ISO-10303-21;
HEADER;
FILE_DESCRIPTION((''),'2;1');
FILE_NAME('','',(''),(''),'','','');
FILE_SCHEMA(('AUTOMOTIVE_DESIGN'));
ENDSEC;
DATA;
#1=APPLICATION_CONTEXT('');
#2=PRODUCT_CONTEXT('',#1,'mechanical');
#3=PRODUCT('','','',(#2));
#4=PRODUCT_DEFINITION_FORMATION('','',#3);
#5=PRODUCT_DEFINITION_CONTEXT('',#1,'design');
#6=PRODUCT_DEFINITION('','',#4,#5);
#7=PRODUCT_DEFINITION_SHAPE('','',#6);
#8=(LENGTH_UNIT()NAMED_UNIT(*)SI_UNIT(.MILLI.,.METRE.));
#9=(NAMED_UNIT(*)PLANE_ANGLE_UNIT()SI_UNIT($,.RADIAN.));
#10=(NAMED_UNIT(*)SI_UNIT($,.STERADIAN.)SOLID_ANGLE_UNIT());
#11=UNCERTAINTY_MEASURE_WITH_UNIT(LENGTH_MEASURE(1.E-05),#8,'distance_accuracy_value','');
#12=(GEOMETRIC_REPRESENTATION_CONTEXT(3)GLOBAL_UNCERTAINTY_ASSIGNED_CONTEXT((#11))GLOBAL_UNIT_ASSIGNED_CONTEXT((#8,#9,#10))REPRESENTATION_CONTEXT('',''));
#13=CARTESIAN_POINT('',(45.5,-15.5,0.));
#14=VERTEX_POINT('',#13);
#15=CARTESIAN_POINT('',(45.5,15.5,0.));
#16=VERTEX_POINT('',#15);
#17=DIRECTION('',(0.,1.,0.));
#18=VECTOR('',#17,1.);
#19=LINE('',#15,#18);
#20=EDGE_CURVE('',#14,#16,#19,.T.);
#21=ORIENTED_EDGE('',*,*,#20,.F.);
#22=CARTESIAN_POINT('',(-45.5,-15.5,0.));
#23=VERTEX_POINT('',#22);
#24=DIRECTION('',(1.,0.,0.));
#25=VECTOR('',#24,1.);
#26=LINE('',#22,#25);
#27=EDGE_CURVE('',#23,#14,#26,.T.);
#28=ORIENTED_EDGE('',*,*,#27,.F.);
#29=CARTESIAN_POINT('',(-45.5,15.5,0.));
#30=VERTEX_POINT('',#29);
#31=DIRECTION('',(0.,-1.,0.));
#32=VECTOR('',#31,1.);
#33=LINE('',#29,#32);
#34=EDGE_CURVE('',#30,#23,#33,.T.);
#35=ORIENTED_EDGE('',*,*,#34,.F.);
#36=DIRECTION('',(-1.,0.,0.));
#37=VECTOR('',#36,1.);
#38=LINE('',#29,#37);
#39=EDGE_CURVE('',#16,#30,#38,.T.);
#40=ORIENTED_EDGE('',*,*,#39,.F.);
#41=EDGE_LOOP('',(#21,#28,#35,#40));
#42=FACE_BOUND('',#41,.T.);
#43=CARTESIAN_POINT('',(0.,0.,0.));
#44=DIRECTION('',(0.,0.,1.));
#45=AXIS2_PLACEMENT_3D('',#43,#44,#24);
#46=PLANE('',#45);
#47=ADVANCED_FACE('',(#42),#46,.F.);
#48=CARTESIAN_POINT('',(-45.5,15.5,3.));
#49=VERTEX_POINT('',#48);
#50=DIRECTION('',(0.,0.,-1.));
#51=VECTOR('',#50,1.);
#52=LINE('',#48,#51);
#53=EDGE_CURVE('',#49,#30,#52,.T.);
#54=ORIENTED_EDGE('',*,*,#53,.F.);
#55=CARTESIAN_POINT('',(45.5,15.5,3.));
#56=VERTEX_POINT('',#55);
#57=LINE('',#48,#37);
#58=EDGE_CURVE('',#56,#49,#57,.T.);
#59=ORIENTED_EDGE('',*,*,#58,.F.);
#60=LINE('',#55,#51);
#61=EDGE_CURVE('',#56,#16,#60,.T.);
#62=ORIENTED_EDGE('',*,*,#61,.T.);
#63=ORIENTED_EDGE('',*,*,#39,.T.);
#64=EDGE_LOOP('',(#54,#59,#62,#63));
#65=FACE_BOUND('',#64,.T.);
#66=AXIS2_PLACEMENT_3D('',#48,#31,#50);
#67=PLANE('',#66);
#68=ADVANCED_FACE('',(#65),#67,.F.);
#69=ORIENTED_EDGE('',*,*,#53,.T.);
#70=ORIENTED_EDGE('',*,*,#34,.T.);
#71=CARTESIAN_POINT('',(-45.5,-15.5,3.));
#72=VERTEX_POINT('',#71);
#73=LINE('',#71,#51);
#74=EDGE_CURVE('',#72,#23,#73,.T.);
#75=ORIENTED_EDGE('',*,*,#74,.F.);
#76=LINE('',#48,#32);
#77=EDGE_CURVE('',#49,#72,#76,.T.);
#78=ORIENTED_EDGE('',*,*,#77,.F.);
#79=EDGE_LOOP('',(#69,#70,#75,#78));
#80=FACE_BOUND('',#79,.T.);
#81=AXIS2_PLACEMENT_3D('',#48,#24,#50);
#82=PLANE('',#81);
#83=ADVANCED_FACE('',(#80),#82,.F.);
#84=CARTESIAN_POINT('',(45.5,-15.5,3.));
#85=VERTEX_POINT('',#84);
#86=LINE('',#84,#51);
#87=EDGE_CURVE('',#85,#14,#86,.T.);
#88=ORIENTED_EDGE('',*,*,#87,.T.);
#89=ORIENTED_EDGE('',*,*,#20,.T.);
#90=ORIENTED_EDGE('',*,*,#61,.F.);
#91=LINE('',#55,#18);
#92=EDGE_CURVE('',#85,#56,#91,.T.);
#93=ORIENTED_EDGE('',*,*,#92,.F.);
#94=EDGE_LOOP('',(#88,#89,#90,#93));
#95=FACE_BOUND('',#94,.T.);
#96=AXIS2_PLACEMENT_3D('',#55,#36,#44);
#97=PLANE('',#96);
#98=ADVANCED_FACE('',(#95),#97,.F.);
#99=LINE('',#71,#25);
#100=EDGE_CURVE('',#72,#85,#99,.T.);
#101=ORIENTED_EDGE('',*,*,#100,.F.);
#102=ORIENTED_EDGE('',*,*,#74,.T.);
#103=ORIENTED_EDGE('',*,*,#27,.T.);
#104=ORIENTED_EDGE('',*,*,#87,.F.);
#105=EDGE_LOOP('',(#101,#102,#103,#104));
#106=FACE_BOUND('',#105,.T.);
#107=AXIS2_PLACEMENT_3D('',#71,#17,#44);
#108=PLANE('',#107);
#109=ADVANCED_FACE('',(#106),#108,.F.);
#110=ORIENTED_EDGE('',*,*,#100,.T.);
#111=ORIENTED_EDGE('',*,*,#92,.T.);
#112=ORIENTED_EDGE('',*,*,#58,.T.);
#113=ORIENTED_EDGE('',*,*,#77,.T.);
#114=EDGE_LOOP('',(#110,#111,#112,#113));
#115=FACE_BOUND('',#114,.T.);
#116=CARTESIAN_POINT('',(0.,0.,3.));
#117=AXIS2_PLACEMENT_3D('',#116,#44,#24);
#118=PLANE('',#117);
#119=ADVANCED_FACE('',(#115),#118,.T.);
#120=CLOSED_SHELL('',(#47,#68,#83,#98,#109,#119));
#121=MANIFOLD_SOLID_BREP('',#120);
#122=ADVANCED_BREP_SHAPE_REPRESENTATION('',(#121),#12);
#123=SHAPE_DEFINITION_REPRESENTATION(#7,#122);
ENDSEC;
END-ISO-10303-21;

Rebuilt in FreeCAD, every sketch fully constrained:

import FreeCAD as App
import Part
import Sketcher

V = App.Vector

doc = App.newDocument("Part")
body = doc.addObject("PartDesign::Body", "Body")

# Sketch on XY plane
sketch1 = doc.addObject("Sketcher::SketchObject", "Sketch")
body.addObject(sketch1)
sketch1.AttachmentSupport = (doc.XY_Plane, [""])
sketch1.MapMode = "FlatFace"
sketch1.addGeometry(Part.LineSegment(V(-46, 16, 0), V(-46, -16, 0)), False)
sketch1.addGeometry(Part.LineSegment(V(-46, -16, 0), V(46, -16, 0)), False)
sketch1.addGeometry(Part.LineSegment(V(46, -16, 0), V(46, 16, 0)), False)
sketch1.addGeometry(Part.LineSegment(V(46, 16, 0), V(-46, 16, 0)), False)
sketch1.addConstraint(Sketcher.Constraint("Coincident", 0, 2, 1, 1))
sketch1.addConstraint(Sketcher.Constraint("Coincident", 1, 2, 2, 1))
sketch1.addConstraint(Sketcher.Constraint("Coincident", 2, 2, 3, 1))
sketch1.addConstraint(Sketcher.Constraint("Coincident", 3, 2, 0, 1))
sketch1.addConstraint(Sketcher.Constraint("Vertical", 0))
sketch1.addConstraint(Sketcher.Constraint("Horizontal", 1))
sketch1.addConstraint(Sketcher.Constraint("Vertical", 2))
sketch1.addConstraint(Sketcher.Constraint("Horizontal", 3))
sketch1.addConstraint(Sketcher.Constraint("Symmetric", 0, 2, 2, 2, -1, 1))
sketch1.addConstraint(Sketcher.Constraint("DistanceX", 1, 1, 1, 2, 91.0))
sketch1.addConstraint(Sketcher.Constraint("DistanceY", 0, 2, 0, 1, 31.0))
pad1 = doc.addObject("PartDesign::Pad", "Pad")
body.addObject(pad1)
pad1.Profile = sketch1
pad1.Length = 3

doc.recompute()
